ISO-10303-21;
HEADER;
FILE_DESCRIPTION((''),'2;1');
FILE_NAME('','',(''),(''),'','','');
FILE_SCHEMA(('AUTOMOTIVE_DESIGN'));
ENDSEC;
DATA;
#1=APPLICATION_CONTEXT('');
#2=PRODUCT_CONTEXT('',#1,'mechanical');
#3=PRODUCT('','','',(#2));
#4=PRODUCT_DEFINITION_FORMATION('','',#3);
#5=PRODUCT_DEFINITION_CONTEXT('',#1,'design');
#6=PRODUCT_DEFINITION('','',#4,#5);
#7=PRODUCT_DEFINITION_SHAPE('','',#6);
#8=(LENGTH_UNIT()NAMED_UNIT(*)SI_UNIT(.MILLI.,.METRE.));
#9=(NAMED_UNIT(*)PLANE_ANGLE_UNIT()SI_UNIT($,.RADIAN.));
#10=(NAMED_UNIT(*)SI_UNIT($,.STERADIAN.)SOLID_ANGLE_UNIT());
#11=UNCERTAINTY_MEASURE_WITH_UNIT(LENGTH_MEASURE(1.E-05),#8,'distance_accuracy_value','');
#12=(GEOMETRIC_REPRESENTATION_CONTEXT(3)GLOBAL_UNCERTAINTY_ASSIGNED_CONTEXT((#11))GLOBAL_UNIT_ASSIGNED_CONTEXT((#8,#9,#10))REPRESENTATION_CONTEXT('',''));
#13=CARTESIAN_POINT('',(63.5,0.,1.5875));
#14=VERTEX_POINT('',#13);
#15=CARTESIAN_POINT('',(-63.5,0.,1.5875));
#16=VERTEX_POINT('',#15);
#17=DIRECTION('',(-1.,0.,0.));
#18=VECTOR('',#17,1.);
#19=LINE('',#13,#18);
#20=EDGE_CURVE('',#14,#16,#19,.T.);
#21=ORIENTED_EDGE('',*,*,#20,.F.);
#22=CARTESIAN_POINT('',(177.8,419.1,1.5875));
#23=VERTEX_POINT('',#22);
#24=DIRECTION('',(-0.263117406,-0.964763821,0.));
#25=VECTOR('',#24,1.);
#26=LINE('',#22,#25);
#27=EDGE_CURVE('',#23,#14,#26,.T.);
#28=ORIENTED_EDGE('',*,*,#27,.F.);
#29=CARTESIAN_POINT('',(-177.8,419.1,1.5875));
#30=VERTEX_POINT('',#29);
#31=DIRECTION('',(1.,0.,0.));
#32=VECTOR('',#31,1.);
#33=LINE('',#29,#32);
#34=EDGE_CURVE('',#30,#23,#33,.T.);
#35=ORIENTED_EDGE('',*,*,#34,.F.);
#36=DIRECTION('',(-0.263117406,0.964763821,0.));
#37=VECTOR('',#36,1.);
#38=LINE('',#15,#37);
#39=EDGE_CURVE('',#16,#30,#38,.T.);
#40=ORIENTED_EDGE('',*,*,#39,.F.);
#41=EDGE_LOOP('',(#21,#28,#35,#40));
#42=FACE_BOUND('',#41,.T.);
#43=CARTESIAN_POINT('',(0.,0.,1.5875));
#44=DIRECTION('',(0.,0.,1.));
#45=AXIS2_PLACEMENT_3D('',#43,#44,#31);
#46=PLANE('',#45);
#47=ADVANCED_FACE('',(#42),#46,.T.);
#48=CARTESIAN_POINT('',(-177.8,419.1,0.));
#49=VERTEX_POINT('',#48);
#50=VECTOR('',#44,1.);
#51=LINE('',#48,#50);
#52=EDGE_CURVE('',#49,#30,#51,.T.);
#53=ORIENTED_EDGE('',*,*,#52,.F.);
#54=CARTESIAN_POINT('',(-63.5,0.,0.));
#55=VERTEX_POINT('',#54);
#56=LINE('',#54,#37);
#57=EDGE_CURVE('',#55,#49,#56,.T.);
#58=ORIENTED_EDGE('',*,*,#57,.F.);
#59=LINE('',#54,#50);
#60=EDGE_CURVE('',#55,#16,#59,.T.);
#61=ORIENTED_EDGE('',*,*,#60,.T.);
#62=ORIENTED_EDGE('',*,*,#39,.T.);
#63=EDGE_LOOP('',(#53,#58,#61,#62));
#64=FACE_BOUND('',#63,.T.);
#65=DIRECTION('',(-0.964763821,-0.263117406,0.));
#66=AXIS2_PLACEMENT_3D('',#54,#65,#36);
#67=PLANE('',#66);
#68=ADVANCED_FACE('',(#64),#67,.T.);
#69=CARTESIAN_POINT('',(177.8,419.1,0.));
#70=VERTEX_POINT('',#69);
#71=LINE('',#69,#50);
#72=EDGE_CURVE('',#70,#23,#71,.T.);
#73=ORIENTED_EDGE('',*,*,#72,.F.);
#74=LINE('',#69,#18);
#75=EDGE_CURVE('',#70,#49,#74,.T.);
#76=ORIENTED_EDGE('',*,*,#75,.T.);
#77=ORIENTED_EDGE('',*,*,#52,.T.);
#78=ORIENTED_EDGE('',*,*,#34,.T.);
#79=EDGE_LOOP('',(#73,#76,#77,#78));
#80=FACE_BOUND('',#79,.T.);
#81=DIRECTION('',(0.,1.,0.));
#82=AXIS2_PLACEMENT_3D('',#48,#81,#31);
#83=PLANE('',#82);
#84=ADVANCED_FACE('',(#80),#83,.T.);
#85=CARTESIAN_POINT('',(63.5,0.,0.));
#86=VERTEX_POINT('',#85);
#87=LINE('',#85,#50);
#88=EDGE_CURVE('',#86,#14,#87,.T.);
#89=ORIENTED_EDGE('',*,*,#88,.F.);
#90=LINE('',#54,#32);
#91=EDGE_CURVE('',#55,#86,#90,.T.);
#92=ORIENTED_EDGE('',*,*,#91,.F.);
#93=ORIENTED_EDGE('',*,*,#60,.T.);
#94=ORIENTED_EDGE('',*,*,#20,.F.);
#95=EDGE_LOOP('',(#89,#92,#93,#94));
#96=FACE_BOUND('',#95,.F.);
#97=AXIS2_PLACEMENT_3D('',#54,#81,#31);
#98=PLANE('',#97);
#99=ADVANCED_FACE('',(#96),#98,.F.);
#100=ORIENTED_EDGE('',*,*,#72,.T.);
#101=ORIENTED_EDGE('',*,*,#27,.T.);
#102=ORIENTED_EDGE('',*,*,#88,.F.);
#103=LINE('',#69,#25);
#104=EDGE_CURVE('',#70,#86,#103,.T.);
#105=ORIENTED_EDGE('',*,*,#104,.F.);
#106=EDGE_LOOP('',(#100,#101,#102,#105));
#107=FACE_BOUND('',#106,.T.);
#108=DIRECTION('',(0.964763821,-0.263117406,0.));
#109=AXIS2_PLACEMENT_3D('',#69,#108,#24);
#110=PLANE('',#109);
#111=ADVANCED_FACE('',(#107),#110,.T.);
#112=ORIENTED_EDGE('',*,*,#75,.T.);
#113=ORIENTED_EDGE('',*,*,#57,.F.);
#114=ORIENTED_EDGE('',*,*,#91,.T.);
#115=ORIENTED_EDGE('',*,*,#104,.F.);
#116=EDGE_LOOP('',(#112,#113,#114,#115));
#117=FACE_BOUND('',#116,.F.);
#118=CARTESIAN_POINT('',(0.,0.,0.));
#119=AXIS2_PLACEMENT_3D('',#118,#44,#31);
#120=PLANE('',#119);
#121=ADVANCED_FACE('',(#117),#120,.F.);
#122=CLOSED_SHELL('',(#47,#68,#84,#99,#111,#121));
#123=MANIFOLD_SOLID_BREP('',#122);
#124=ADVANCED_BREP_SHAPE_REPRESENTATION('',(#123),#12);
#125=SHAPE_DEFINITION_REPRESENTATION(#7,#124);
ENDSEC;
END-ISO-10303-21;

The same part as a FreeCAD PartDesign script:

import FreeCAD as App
import Part
import Sketcher
from FreeCAD import Vector
Q = App.Units.Quantity

doc = App.newDocument("Part")
body = doc.addObject("PartDesign::Body", "Body")

# Sketch on XY plane
sketch1 = doc.addObject("Sketcher::SketchObject", "Sketch")
body.addObject(sketch1)
sketch1.AttachmentSupport = (doc.XY_Plane, [""])
sketch1.MapMode = "FlatFace"
sketch1.addGeometry([
    Part.LineSegment(Vector(-177.8, 419.1, 0), Vector(-63.5, 0, 0)),
    Part.LineSegment(Vector(-63.5, 0, 0), Vector(63.5, 0, 0)),
    Part.LineSegment(Vector(63.5, 0, 0), Vector(177.8, 419.1, 0)),
    Part.LineSegment(Vector(177.8, 419.1, 0), Vector(-177.8, 419.1, 0)),
], False)
sketch1.addConstraint([
    Sketcher.Constraint("Coincident", 0, 2, 1, 1),
    Sketcher.Constraint("Coincident", 1, 2, 2, 1),
    Sketcher.Constraint("Coincident", 2, 2, 3, 1),
    Sketcher.Constraint("Coincident", 3, 2, 0, 1),
    Sketcher.Constraint("Horizontal", 1),
    Sketcher.Constraint("Horizontal", 3),
    Sketcher.Constraint("Symmetric", 0, 2, 1, 2, -1, 1),
    Sketcher.Constraint("Equal", 0, 2),
    Sketcher.Constraint("DistanceX", 1, 1, 1, 2, Q("5 in")),
    Sketcher.Constraint("DistanceX", 3, 2, 3, 1, Q("14 in")),
    Sketcher.Constraint("DistanceY", -1, 1, 2, 2, Q("16.5 in")),
])
pad1 = doc.addObject("PartDesign::Pad", "Pad")
body.addObject(pad1)
pad1.Profile = sketch1
pad1.Length = Q("0.0625 in")

doc.recompute()
